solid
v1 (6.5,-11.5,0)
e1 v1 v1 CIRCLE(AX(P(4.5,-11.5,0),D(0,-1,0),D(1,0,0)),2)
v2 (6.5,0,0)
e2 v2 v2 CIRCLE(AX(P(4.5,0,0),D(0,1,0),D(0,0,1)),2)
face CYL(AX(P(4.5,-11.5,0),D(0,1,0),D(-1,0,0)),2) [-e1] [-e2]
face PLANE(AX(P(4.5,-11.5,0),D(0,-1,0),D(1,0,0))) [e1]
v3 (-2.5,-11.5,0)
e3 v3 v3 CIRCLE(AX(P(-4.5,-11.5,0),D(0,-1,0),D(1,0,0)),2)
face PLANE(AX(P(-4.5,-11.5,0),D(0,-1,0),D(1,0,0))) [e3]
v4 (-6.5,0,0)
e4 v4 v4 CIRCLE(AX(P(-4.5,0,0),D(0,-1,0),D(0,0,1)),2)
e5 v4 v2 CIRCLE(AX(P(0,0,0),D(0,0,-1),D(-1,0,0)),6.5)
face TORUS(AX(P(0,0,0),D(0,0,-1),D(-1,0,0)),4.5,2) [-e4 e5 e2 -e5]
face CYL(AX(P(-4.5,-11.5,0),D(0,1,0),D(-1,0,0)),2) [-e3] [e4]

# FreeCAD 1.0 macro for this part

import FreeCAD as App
import Part
import Sketcher

V = App.Vector
Q = App.Units.Quantity

doc = App.newDocument("Part")
body = doc.addObject("PartDesign::Body", "Body")

sketch1 = body.newObject("Sketcher::SketchObject", "Sketch")
sketch1.AttachmentSupport = (doc.getObject("XZ_Plane"), [""])
sketch1.MapMode = "FlatFace"
sketch1.addGeometry(Part.Circle(V(4.5, 0, 0), V(0, 0, 1), 2), False)
sketch1.addConstraint([
    Sketcher.Constraint("PointOnObject", 0, 3, -1),
    Sketcher.Constraint("Diameter", 0, Q("4 mm")),
    Sketcher.Constraint("DistanceX", -1, 1, 0, 3, Q("4.5 mm")),
])
revolution = body.newObject("PartDesign::Revolution", "Revolution")
revolution.Profile = sketch1
revolution.ReferenceAxis = (sketch1, ["V_Axis"])
revolution.Angle = 180

sketch2 = body.newObject("Sketcher::SketchObject", "Sketch001")
sketch2.AttachmentSupport = (doc.getObject("XZ_Plane"), [""])
sketch2.MapMode = "FlatFace"
sketch2.addGeometry([
    Part.Circle(V(4.5, 0, 0), V(0, 0, 1), 2),
    Part.Circle(V(-4.5, 0, 0), V(0, 0, 1), 2),
], False)
sketch2.addConstraint([
    Sketcher.Constraint("Equal", 0, 1),
    Sketcher.Constraint("Symmetric", 0, 3, 1, 3, -1, 1),
    Sketcher.Constraint("PointOnObject", 0, 3, -1),
    Sketcher.Constraint("Diameter", 0, Q("4 mm")),
    Sketcher.Constraint("DistanceX", 1, 3, 0, 3, Q("9 mm")),
])
pad1 = body.newObject("PartDesign::Pad", "Pad")
pad1.Profile = sketch2
pad1.Length = 11.5

doc.recompute()
